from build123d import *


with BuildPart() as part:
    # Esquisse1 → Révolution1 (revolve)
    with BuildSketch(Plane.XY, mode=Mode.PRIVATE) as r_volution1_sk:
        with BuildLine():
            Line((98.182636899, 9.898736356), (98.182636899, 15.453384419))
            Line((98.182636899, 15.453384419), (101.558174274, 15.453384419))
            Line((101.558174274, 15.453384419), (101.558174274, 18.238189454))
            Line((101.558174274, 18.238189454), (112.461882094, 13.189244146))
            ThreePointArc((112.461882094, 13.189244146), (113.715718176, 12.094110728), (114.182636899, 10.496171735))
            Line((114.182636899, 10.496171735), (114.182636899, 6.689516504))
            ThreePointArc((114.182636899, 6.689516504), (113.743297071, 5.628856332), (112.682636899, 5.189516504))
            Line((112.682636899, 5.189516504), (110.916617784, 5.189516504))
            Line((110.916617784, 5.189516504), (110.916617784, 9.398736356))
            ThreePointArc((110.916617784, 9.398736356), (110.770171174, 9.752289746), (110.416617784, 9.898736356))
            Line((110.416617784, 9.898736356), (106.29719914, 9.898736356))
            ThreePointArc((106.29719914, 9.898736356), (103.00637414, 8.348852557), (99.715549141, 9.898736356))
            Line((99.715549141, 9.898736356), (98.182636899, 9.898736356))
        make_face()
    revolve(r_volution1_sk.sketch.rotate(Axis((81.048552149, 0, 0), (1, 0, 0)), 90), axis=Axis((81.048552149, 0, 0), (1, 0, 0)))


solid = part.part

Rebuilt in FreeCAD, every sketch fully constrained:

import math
import FreeCAD as App
import Part
import Sketcher
from FreeCAD import Vector
Q = App.Units.Quantity

doc = App.newDocument("Part")
body = doc.addObject("PartDesign::Body", "Body")

# Sketch on XY plane
sketch1 = body.newObject("Sketcher::SketchObject", "Sketch")
sketch1.AttachmentSupport = (doc.getObject("XY_Plane"), [""])
sketch1.MapMode = "FlatFace"
sketch1.addGeometry([
    Part.LineSegment(Vector(98.2, 15.5, 0), Vector(98.2, 9.9, 0)),  # 0
    Part.LineSegment(Vector(98.2, 9.9, 0), Vector(99.7, 9.9, 0)),  # 1
    Part.ArcOfCircle(Part.Circle(Vector(103, 12.6, 0), Vector(0, 0, 1), 4.3), math.radians(-140), math.radians(-40)),  # 2
    Part.LineSegment(Vector(106.3, 9.9, 0), Vector(110.4, 9.9, 0)),  # 3
    Part.ArcOfCircle(Part.Circle(Vector(110.4, 9.4, 0), Vector(0, 0, 1), 0.5), math.radians(0), math.radians(90)),  # 4
    Part.LineSegment(Vector(110.9, 9.4, 0), Vector(110.9, 5.2, 0)),  # 5
    Part.LineSegment(Vector(110.9, 5.2, 0), Vector(112.7, 5.2, 0)),  # 6
    Part.ArcOfCircle(Part.Circle(Vector(112.7, 6.7, 0), Vector(0, 0, 1), 1.5), math.radians(-90), math.radians(0)),  # 7
    Part.LineSegment(Vector(114.2, 6.7, 0), Vector(114.2, 10.5, 0)),  # 8
    Part.ArcOfCircle(Part.Circle(Vector(111.2, 10.5, 0), Vector(0, 0, 1), 3), math.radians(0), math.radians(65)),  # 9
    Part.LineSegment(Vector(112.5, 13.2, 0), Vector(101.6, 18.2, 0)),  # 10
    Part.LineSegment(Vector(101.6, 18.2, 0), Vector(101.6, 15.5, 0)),  # 11
    Part.LineSegment(Vector(101.6, 15.5, 0), Vector(98.2, 15.5, 0)),  # 12
], False)
sketch1.addConstraint([
    Sketcher.Constraint("Coincident", 0, 2, 1, 1),
    Sketcher.Constraint("Coincident", 1, 2, 2, 1),
    Sketcher.Constraint("Coincident", 2, 2, 3, 1),
    Sketcher.Constraint("Tangent", 3, 2, 4, 2),
    Sketcher.Constraint("Tangent", 4, 1, 5, 1),
    Sketcher.Constraint("Coincident", 5, 2, 6, 1),
    Sketcher.Constraint("Tangent", 6, 2, 7, 1),
    Sketcher.Constraint("Tangent", 7, 2, 8, 1),
    Sketcher.Constraint("Tangent", 8, 2, 9, 1),
    Sketcher.Constraint("Tangent", 9, 2, 10, 1),
    Sketcher.Constraint("Coincident", 10, 2, 11, 1),
    Sketcher.Constraint("Coincident", 11, 2, 12, 1),
    Sketcher.Constraint("Coincident", 12, 2, 0, 1),
    Sketcher.Constraint("Vertical", 0),
    Sketcher.Constraint("Horizontal", 1),
    Sketcher.Constraint("Horizontal", 3),
    Sketcher.Constraint("Vertical", 5),
    Sketcher.Constraint("Horizontal", 6),
    Sketcher.Constraint("Vertical", 8),
    Sketcher.Constraint("Vertical", 11),
    Sketcher.Constraint("Horizontal", 12),
    Sketcher.Constraint("Horizontal", 1, 2, 2, 2),
    Sketcher.Constraint("Radius", 4, Q("0.5 mm")),
    Sketcher.Constraint("Radius", 7, Q("1.5 mm")),
    Sketcher.Constraint("Radius", 2, Q("4.2686 mm")),
    Sketcher.Constraint("DistanceX", 0, 2, 7, 3, Q("14.5 mm")),
    Sketcher.Constraint("Radius", 9, Q("2.967778 mm")),
    Sketcher.Constraint("DistanceX", 3, 1, 3, 2, Q("4.119419 mm")),
    Sketcher.Constraint("DistanceX", 6, 1, 6, 2, Q("1.766019 mm")),
    Sketcher.Constraint("DistanceY", 0, 2, 0, 1, Q("5.554648 mm")),
    Sketcher.Constraint("DistanceY", 5, 2, 5, 1, Q("4.20922 mm")),
    Sketcher.Constraint("DistanceX", -1, 1, 2, 2, Q("106.297199 mm")),
    Sketcher.Constraint("DistanceX", 10, 2, 2, 3, Q("1.4482 mm")),
    Sketcher.Constraint("DistanceX", 1, 1, 1, 2, Q("1.532912 mm")),
    Sketcher.Constraint("DistanceY", 8, 1, 8, 2, Q("3.806655 mm")),
    Sketcher.Constraint("DistanceY", 11, 2, 11, 1, Q("2.784805 mm")),
    Sketcher.Constraint("DistanceY", -1, 1, 9, 3, Q("10.496172 mm")),
])
revolution = body.newObject("PartDesign::Revolution", "Revolution")
revolution.Profile = sketch1
revolution.ReferenceAxis = (sketch1, ["H_Axis"])
revolution.Angle = 360

doc.recompute()
